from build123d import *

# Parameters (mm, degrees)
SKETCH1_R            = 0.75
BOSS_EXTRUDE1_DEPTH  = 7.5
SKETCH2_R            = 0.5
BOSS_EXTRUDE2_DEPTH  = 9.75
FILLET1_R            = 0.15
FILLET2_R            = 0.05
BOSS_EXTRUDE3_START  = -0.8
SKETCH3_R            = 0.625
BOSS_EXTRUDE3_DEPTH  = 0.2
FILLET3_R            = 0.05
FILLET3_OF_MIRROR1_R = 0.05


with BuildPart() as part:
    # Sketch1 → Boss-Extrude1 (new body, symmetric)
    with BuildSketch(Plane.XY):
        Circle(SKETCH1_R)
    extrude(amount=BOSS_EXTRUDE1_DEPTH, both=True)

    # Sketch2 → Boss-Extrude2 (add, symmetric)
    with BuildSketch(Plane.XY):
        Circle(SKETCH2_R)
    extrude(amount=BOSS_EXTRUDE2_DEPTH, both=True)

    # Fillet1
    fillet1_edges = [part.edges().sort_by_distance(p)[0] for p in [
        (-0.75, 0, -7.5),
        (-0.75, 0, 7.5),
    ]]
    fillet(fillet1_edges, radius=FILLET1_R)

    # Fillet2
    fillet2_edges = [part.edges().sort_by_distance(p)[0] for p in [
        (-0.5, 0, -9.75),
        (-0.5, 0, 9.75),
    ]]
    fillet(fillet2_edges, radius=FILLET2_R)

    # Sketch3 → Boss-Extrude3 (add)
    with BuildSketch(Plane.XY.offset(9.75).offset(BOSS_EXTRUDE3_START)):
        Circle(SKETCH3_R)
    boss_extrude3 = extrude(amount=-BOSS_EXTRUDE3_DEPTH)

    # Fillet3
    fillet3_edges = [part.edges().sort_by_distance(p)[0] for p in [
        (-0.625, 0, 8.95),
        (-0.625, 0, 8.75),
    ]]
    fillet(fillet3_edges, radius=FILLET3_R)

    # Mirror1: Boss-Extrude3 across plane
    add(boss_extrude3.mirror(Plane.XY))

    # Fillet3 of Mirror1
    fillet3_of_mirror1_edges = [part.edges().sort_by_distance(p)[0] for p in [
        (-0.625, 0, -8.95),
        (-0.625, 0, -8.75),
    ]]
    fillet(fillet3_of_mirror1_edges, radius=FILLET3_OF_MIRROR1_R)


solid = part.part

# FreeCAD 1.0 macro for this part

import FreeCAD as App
import Part
import Sketcher


def edges_at(feature, points):
    """Names of the edges that pass closest to the given points."""
    edges = feature.Shape.Edges
    near = lambda p: min(range(len(edges)), key=lambda i: edges[i].distToShape(Part.Vertex(*p))[0])
    return sorted({f"Edge{near(p) + 1}" for p in points})

doc = App.newDocument("Part")
params = doc.addObject("Spreadsheet::Sheet", "Params")
for row, (alias, value) in enumerate([
    ("sketch1_diameter", "1.5 mm"),
    ("pad1_length", "15 mm"),
    ("sketch2_diameter", "1 mm"),
    ("pad2_length", "19.5 mm"),
    ("fillet_radius", "0.15 mm"),
    ("fillet2_radius", "0.05 mm"),
    ("sketch3_diameter", "1.25 mm"),
    ("pad3_length", "0.2 mm"),
    ("fillet3_radius", "0.05 mm"),
    ("fillet4_radius", "0.05 mm"),
], start=1):
    params.set(f"A{row}", alias)
    params.set(f"B{row}", "=" + value)
    params.setAlias(f"B{row}", alias)

body = doc.addObject("PartDesign::Body", "Body")

sketch1 = doc.addObject("Sketcher::SketchObject", "Sketch")
body.addObject(sketch1)
sketch1.AttachmentSupport = (doc.XY_Plane, [""])
sketch1.MapMode = "FlatFace"
sketch1.addGeometry(Part.Circle(App.Vector(0, 0, 0), App.Vector(0, 0, 1), 0.8), False)
sketch1.addConstraint([
    Sketcher.Constraint("Coincident", 0, 3, -1, 1),
    Sketcher.Constraint("Diameter", 0, 1.5),
])
sketch1.setExpression("Constraints[1]", "Params.sketch1_diameter")
pad1 = doc.addObject("PartDesign::Pad", "Pad")
body.addObject(pad1)
pad1.Profile = sketch1
pad1.setExpression("Length", "Params.pad1_length")
pad1.Midplane = True

sketch2 = doc.addObject("Sketcher::SketchObject", "Sketch001")
body.addObject(sketch2)
sketch2.AttachmentSupport = (doc.XY_Plane, [""])
sketch2.MapMode = "FlatFace"
sketch2.addGeometry(Part.Circle(App.Vector(0, 0, 0), App.Vector(0, 0, 1), 0.5), False)
sketch2.addConstraint([
    Sketcher.Constraint("Coincident", 0, 3, -1, 1),
    Sketcher.Constraint("Diameter", 0, 1.0),
])
sketch2.setExpression("Constraints[1]", "Params.sketch2_diameter")
pad2 = doc.addObject("PartDesign::Pad", "Pad001")
body.addObject(pad2)
pad2.Profile = sketch2
pad2.setExpression("Length", "Params.pad2_length")
pad2.Midplane = True
doc.recompute()

fillet = doc.addObject("PartDesign::Fillet", "Fillet")
body.addObject(fillet)
fillet.Base = (pad2, edges_at(pad2, [(-0.75, 0, -7.5), (-0.75, 0, 7.5)]))
fillet.setExpression("Radius", "Params.fillet_radius")
doc.recompute()

fillet2 = doc.addObject("PartDesign::Fillet", "Fillet001")
body.addObject(fillet2)
fillet2.Base = (fillet, edges_at(fillet, [(-0.5, 0, -9.75), (-0.5, 0, 9.75)]))
fillet2.setExpression("Radius", "Params.fillet2_radius")

sketch3 = doc.addObject("Sketcher::SketchObject", "Sketch002")
body.addObject(sketch3)
sketch3.AttachmentSupport = (doc.XY_Plane, [""])
sketch3.MapMode = "FlatFace"
sketch3.AttachmentOffset = App.Placement(App.Vector(0, 0, 8.95), App.Rotation())
sketch3.addGeometry(Part.Circle(App.Vector(0, 0, 0), App.Vector(0, 0, 1), 0.6), False)
sketch3.addConstraint([
    Sketcher.Constraint("Coincident", 0, 3, -1, 1),
    Sketcher.Constraint("Diameter", 0, 1.25),
])
sketch3.setExpression("Constraints[1]", "Params.sketch3_diameter")
pad3 = doc.addObject("PartDesign::Pad", "Pad002")
body.addObject(pad3)
pad3.Profile = sketch3
pad3.setExpression("Length", "Params.pad3_length")
pad3.Reversed = True
doc.recompute()

fillet3 = doc.addObject("PartDesign::Fillet", "Fillet002")
body.addObject(fillet3)
fillet3.Base = (pad3, edges_at(pad3, [(-0.625, 0, 8.95), (-0.625, 0, 8.75)]))
fillet3.setExpression("Radius", "Params.fillet3_radius")
doc.recompute()

mirrored = doc.addObject("PartDesign::Mirrored", "Mirrored")
body.addObject(mirrored)
mirrored.Originals = [pad3]
mirrored.MirrorPlane = (doc.XY_Plane, [""])
body.Tip = mirrored
doc.recompute()

fillet4 = doc.addObject("PartDesign::Fillet", "Fillet003")
body.addObject(fillet4)
fillet4.Base = (mirrored, edges_at(mirrored, [(-0.625, 0, -8.95), (-0.625, 0, -8.75)]))
fillet4.setExpression("Radius", "Params.fillet4_radius")

doc.recompute()
